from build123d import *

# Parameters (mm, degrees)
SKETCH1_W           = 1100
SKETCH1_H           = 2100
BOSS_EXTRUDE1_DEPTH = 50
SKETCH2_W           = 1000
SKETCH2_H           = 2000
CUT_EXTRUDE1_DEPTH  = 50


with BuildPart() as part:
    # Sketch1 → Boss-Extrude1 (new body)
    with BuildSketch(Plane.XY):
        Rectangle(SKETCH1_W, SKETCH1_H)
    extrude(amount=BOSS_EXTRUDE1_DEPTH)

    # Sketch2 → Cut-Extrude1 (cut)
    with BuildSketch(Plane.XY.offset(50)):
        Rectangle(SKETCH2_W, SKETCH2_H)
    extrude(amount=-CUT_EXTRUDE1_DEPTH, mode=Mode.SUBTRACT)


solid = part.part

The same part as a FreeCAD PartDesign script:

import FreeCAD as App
import Part
import Sketcher
from FreeCAD import Vector
Q = App.Units.Quantity

doc = App.newDocument("Part")
body = doc.addObject("PartDesign::Body", "Body")

sketch1 = body.newObject("Sketcher::SketchObject", "Sketch")
sketch1.AttachmentSupport = (doc.getObject("XY_Plane"), [""])
sketch1.MapMode = "FlatFace"
sketch1.addGeometry([
    Part.LineSegment(Vector(-550, 1050, 0), Vector(-550, -1050, 0)),
    Part.LineSegment(Vector(-550, -1050, 0), Vector(550, -1050, 0)),
    Part.LineSegment(Vector(550, -1050, 0), Vector(550, 1050, 0)),
    Part.LineSegment(Vector(550, 1050, 0), Vector(-550, 1050, 0)),
], False)
sketch1.addConstraint([
    Sketcher.Constraint("Coincident", 0, 2, 1, 1),
    Sketcher.Constraint("Coincident", 1, 2, 2, 1),
    Sketcher.Constraint("Coincident", 2, 2, 3, 1),
    Sketcher.Constraint("Coincident", 3, 2, 0, 1),
    Sketcher.Constraint("Vertical", 0),
    Sketcher.Constraint("Horizontal", 1),
    Sketcher.Constraint("Vertical", 2),
    Sketcher.Constraint("Horizontal", 3),
    Sketcher.Constraint("Symmetric", 0, 2, 2, 2, -1, 1),
    Sketcher.Constraint("DistanceX", 1, 1, 1, 2, Q("1100 mm")),
    Sketcher.Constraint("DistanceY", 0, 2, 0, 1, Q("2100 mm")),
])
pad1 = body.newObject("PartDesign::Pad", "Pad")
pad1.Profile = sketch1
pad1.Length = 50

sketch2 = body.newObject("Sketcher::SketchObject", "Sketch001")
sketch2.AttachmentSupport = (doc.getObject("XY_Plane"), [""])
sketch2.MapMode = "FlatFace"
sketch2.AttachmentOffset = App.Placement(Vector(0, 0, 50), App.Rotation())
sketch2.addGeometry([
    Part.LineSegment(Vector(-500, 1000, 0), Vector(-500, -1000, 0)),
    Part.LineSegment(Vector(-500, -1000, 0), Vector(500, -1000, 0)),
    Part.LineSegment(Vector(500, -1000, 0), Vector(500, 1000, 0)),
    Part.LineSegment(Vector(500, 1000, 0), Vector(-500, 1000, 0)),
], False)
sketch2.addConstraint([
    Sketcher.Constraint("Coincident", 0, 2, 1, 1),
    Sketcher.Constraint("Coincident", 1, 2, 2, 1),
    Sketcher.Constraint("Coincident", 2, 2, 3, 1),
    Sketcher.Constraint("Coincident", 3, 2, 0, 1),
    Sketcher.Constraint("Vertical", 0),
    Sketcher.Constraint("Horizontal", 1),
    Sketcher.Constraint("Vertical", 2),
    Sketcher.Constraint("Horizontal", 3),
    Sketcher.Constraint("Symmetric", 0, 2, 2, 2, -1, 1),
    Sketcher.Constraint("DistanceX", 1, 1, 1, 2, Q("1000 mm")),
    Sketcher.Constraint("DistanceY", 0, 2, 0, 1, Q("2000 mm")),
])
pocket1 = body.newObject("PartDesign::Pocket", "Pocket")
pocket1.Profile = sketch2
pocket1.Length = 50

doc.recompute()
